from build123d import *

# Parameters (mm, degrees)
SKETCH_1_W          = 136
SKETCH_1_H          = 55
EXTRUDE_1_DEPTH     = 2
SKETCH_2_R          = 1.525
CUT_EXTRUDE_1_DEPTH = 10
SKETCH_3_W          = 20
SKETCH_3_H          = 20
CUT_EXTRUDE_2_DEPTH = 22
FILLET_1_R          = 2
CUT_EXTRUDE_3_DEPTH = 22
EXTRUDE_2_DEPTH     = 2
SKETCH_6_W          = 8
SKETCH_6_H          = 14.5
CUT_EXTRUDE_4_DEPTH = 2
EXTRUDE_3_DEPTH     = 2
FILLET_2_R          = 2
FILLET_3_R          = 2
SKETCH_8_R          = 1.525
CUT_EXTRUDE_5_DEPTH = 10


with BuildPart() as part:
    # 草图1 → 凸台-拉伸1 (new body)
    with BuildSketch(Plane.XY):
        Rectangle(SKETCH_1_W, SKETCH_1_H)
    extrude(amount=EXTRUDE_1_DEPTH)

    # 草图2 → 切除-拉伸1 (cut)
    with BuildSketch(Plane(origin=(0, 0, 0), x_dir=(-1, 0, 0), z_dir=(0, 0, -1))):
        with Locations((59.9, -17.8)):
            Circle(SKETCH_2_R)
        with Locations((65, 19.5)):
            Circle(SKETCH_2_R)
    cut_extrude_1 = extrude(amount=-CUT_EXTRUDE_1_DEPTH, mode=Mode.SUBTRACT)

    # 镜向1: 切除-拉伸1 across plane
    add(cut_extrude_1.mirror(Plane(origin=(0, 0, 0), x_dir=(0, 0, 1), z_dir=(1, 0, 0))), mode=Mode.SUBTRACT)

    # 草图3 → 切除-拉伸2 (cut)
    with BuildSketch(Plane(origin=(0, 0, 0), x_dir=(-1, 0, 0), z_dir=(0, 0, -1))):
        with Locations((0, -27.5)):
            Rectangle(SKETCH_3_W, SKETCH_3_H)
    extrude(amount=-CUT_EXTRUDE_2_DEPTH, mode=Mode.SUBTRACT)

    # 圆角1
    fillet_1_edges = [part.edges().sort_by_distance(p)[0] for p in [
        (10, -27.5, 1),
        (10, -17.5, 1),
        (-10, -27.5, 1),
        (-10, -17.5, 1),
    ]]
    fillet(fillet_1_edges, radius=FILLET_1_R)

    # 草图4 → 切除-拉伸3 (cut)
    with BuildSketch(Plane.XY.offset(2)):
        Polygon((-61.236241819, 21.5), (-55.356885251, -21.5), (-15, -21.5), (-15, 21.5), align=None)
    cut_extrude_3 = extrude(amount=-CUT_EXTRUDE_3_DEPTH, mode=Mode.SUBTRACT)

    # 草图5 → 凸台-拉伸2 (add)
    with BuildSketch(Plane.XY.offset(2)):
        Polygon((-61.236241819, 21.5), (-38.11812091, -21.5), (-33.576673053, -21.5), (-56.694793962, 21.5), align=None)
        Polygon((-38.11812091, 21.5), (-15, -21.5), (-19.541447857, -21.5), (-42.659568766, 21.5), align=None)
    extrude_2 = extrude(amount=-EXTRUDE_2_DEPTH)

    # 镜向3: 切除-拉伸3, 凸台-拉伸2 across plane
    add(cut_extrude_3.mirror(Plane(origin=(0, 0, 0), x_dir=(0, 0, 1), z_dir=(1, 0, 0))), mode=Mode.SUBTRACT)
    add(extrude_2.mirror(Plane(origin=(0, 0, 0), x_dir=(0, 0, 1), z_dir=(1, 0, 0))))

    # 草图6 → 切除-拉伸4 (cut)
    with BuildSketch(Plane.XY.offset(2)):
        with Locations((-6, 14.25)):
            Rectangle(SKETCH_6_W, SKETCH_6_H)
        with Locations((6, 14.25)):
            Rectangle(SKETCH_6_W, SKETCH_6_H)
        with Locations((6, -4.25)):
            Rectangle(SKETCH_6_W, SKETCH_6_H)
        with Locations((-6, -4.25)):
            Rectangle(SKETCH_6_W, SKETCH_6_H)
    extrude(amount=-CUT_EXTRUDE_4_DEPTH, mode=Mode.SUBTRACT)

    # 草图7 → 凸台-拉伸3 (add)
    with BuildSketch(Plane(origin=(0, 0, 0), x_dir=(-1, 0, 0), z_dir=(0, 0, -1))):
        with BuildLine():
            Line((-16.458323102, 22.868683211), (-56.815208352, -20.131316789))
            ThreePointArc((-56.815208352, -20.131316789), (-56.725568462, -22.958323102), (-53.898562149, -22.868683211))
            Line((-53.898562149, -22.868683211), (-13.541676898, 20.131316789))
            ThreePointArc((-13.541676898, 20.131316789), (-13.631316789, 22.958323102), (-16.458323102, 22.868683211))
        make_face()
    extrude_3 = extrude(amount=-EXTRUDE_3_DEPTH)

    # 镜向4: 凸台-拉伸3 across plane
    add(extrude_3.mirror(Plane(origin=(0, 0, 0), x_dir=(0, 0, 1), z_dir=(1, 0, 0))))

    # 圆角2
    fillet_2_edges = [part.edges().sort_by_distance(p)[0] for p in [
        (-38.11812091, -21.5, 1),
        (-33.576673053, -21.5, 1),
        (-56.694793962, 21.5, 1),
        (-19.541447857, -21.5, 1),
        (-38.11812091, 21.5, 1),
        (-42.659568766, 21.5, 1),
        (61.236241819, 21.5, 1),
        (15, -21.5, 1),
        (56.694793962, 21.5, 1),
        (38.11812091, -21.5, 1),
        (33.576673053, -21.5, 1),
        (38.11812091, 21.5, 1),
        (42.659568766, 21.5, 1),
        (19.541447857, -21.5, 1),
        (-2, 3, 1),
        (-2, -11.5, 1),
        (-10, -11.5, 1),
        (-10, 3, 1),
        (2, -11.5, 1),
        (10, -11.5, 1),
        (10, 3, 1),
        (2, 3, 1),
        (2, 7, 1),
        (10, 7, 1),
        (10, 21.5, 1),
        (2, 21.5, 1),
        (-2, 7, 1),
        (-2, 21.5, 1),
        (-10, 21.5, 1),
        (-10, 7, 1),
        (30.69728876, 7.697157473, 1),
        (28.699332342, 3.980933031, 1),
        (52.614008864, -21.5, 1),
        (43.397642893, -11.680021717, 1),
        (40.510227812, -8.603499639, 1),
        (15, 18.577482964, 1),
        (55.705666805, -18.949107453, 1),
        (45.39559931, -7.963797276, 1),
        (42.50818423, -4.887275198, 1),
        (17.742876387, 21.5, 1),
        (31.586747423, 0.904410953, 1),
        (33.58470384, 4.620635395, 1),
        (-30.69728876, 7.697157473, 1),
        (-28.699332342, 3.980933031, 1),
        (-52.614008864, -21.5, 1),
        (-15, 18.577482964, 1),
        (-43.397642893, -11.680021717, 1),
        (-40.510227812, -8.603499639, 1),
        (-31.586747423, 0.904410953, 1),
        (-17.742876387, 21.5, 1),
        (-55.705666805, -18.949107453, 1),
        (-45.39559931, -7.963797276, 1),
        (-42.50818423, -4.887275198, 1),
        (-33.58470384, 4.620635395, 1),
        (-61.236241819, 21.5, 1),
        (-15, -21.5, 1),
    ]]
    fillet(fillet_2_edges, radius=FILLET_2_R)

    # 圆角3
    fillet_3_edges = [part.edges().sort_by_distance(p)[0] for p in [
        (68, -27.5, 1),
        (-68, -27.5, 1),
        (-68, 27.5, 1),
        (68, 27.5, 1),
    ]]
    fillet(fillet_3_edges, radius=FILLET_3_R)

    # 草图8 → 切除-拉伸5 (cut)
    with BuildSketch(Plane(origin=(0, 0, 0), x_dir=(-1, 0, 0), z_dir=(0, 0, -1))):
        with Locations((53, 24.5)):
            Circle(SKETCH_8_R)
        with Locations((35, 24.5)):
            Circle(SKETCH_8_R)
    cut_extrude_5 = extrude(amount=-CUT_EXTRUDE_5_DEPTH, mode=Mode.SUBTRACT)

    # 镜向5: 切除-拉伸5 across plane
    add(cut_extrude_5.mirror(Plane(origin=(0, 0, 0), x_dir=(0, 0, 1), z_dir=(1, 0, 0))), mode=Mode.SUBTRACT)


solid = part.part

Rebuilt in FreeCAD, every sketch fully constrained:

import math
import FreeCAD as App
import Part
import Sketcher
from FreeCAD import Vector
Q = App.Units.Quantity


def edges_at(feature, points):
    """Names of the edges that pass closest to the given points."""
    edges = feature.Shape.Edges
    near = lambda p: min(range(len(edges)), key=lambda i: edges[i].distToShape(Part.Vertex(*p))[0])
    return sorted({f"Edge{near(p) + 1}" for p in points})

doc = App.newDocument("Part")
body = doc.addObject("PartDesign::Body", "Body")

sketch1 = body.newObject("Sketcher::SketchObject", "Sketch")
sketch1.AttachmentSupport = (doc.getObject("XY_Plane"), [""])
sketch1.MapMode = "FlatFace"
sketch1.addGeometry(Part.LineSegment(Vector(-68, 28, 0), Vector(-68, -28, 0)), False)
sketch1.addGeometry(Part.LineSegment(Vector(-68, -28, 0), Vector(68, -28, 0)), False)
sketch1.addGeometry(Part.LineSegment(Vector(68, -28, 0), Vector(68, 28, 0)), False)
sketch1.addGeometry(Part.LineSegment(Vector(68, 28, 0), Vector(-68, 28, 0)), False)
sketch1.addConstraint(Sketcher.Constraint("Coincident", 0, 2, 1, 1))
sketch1.addConstraint(Sketcher.Constraint("Coincident", 1, 2, 2, 1))
sketch1.addConstraint(Sketcher.Constraint("Coincident", 2, 2, 3, 1))
sketch1.addConstraint(Sketcher.Constraint("Coincident", 3, 2, 0, 1))
sketch1.addConstraint(Sketcher.Constraint("Vertical", 0))
sketch1.addConstraint(Sketcher.Constraint("Horizontal", 1))
sketch1.addConstraint(Sketcher.Constraint("Vertical", 2))
sketch1.addConstraint(Sketcher.Constraint("Horizontal", 3))
sketch1.addConstraint(Sketcher.Constraint("Symmetric", 0, 2, 2, 2, -1, 1))
sketch1.addConstraint(Sketcher.Constraint("DistanceX", 1, 1, 1, 2, Q("136 mm")))
sketch1.addConstraint(Sketcher.Constraint("DistanceY", 0, 2, 0, 1, Q("55 mm")))
pad1 = body.newObject("PartDesign::Pad", "Pad")
pad1.Profile = sketch1
pad1.Length = 2

sketch2 = body.newObject("Sketcher::SketchObject", "Sketch001")
sketch2.AttachmentSupport = (doc.getObject("XY_Plane"), [""])
sketch2.MapMode = "FlatFace"
sketch2.addGeometry(Part.Circle(Vector(-59.9, -17.8, 0), Vector(0, 0, 1), 1.5), False)
sketch2.addGeometry(Part.Circle(Vector(-65, 19.5, 0), Vector(0, 0, 1), 1.5), False)
sketch2.addConstraint(Sketcher.Constraint("Equal", 0, 1))
sketch2.addConstraint(Sketcher.Constraint("Diameter", 0, Q("3.05 mm")))
sketch2.addConstraint(Sketcher.Constraint("DistanceX", 1, 3, -1, 1, Q("65 mm")))
sketch2.addConstraint(Sketcher.Constraint("DistanceX", 0, 3, -1, 1, Q("59.9 mm")))
sketch2.addConstraint(Sketcher.Constraint("DistanceY", 0, 3, -1, 1, Q("17.8 mm")))
sketch2.addConstraint(Sketcher.Constraint("DistanceY", -1, 1, 1, 3, Q("19.5 mm")))
pocket1 = body.newObject("PartDesign::Pocket", "Pocket")
pocket1.Profile = sketch2
pocket1.Length = 10
pocket1.Reversed = True
doc.recompute()

mirrored = body.newObject("PartDesign::Mirrored", "Mirrored")
mirrored.Originals = [pocket1]
mirrored.MirrorPlane = (doc.getObject("YZ_Plane"), [""])
body.Tip = mirrored

sketch3 = body.newObject("Sketcher::SketchObject", "Sketch002")
sketch3.AttachmentSupport = (doc.getObject("XY_Plane"), [""])
sketch3.MapMode = "FlatFace"
sketch3.addGeometry(Part.LineSegment(Vector(10, -18, 0), Vector(10, -38, 0)), False)
sketch3.addGeometry(Part.LineSegment(Vector(10, -38, 0), Vector(-10, -38, 0)), False)
sketch3.addGeometry(Part.LineSegment(Vector(-10, -38, 0), Vector(-10, -18, 0)), False)
sketch3.addGeometry(Part.LineSegment(Vector(-10, -18, 0), Vector(10, -18, 0)), False)
sketch3.addConstraint(Sketcher.Constraint("Coincident", 0, 2, 1, 1))
sketch3.addConstraint(Sketcher.Constraint("Coincident", 1, 2, 2, 1))
sketch3.addConstraint(Sketcher.Constraint("Coincident", 2, 2, 3, 1))
sketch3.addConstraint(Sketcher.Constraint("Coincident", 3, 2, 0, 1))
sketch3.addConstraint(Sketcher.Constraint("Vertical", 0))
sketch3.addConstraint(Sketcher.Constraint("Horizontal", 1))
sketch3.addConstraint(Sketcher.Constraint("Vertical", 2))
sketch3.addConstraint(Sketcher.Constraint("Horizontal", 3))
sketch3.addConstraint(Sketcher.Constraint("Equal", 3, 0))
sketch3.addConstraint(Sketcher.Constraint("DistanceX", 1, 2, 1, 1, Q("20 mm")))
sketch3.addConstraint(Sketcher.Constraint("DistanceX", -1, 1, 0, 2, Q("10 mm")))
sketch3.addConstraint(Sketcher.Constraint("DistanceY", 0, 2, -1, 1, Q("37.5 mm")))
pocket2 = body.newObject("PartDesign::Pocket", "Pocket001")
pocket2.Profile = sketch3
pocket2.Length = 22
pocket2.Reversed = True
doc.recompute()

fillet = body.newObject("PartDesign::Fillet", "Fillet")
fillet.Base = (pocket2, edges_at(pocket2, [
    (10, -27.5, 1),
    (10, -17.5, 1),
    (-10, -27.5, 1),
    (-10, -17.5, 1),
]))
fillet.Radius = 2

sketch4 = body.newObject("Sketcher::SketchObject", "Sketch003")
sketch4.AttachmentSupport = (doc.getObject("XY_Plane"), [""])
sketch4.MapMode = "FlatFace"
sketch4.AttachmentOffset = App.Placement(Vector(0, 0, 2), App.Rotation())
sketch4.addGeometry(Part.LineSegment(Vector(-61, 22, 0), Vector(-55, -22, 0)), False)
sketch4.addGeometry(Part.LineSegment(Vector(-55, -22, 0), Vector(-15, -22, 0)), False)
sketch4.addGeometry(Part.LineSegment(Vector(-15, -22, 0), Vector(-15, 22, 0)), False)
sketch4.addGeometry(Part.LineSegment(Vector(-15, 22, 0), Vector(-61, 22, 0)), False)
sketch4.addConstraint(Sketcher.Constraint("Coincident", 0, 2, 1, 1))
sketch4.addConstraint(Sketcher.Constraint("Coincident", 1, 2, 2, 1))
sketch4.addConstraint(Sketcher.Constraint("Coincident", 2, 2, 3, 1))
sketch4.addConstraint(Sketcher.Constraint("Coincident", 3, 2, 0, 1))
sketch4.addConstraint(Sketcher.Constraint("Horizontal", 1))
sketch4.addConstraint(Sketcher.Constraint("Vertical", 2))
sketch4.addConstraint(Sketcher.Constraint("Horizontal", 3))
sketch4.addConstraint(Sketcher.Constraint("DistanceY", 2, 1, 2, 2, Q("43 mm")))
sketch4.addConstraint(Sketcher.Constraint("DistanceX", 1, 2, -1, 1, Q("15 mm")))
sketch4.addConstraint(Sketcher.Constraint("DistanceY", 0, 2, -1, 1, Q("21.5 mm")))
sketch4.addConstraint(Sketcher.Constraint("DistanceX", 3, 2, 3, 1, Q("46.236242 mm")))
sketch4.addConstraint(Sketcher.Constraint("Distance", 0, Q("43.400079 mm")))
pocket3 = body.newObject("PartDesign::Pocket", "Pocket002")
pocket3.Profile = sketch4
pocket3.Length = 22

sketch5 = body.newObject("Sketcher::SketchObject", "Sketch004")
sketch5.AttachmentSupport = (doc.getObject("XY_Plane"), [""])
sketch5.MapMode = "FlatFace"
sketch5.AttachmentOffset = App.Placement(Vector(0, 0, 2), App.Rotation())
sketch5.addGeometry(Part.LineSegment(Vector(-61.2, 21.5, 0), Vector(-38.1, -21.5, 0)), False)
sketch5.addGeometry(Part.LineSegment(Vector(-38.1, -21.5, 0), Vector(-33.6, -21.5, 0)), False)
sketch5.addGeometry(Part.LineSegment(Vector(-33.6, -21.5, 0), Vector(-56.7, 21.5, 0)), False)
sketch5.addGeometry(Part.LineSegment(Vector(-56.7, 21.5, 0), Vector(-61.2, 21.5, 0)), False)
sketch5.addGeometry(Part.LineSegment(Vector(-15, -21.5, 0), Vector(-38.1, 21.5, 0)), False)
sketch5.addGeometry(Part.LineSegment(Vector(-38.1, 21.5, 0), Vector(-42.7, 21.5, 0)), False)
sketch5.addGeometry(Part.LineSegment(Vector(-42.7, 21.5, 0), Vector(-19.5, -21.5, 0)), False)
sketch5.addGeometry(Part.LineSegment(Vector(-19.5, -21.5, 0), Vector(-15, -21.5, 0)), False)
sketch5.addConstraint(Sketcher.Constraint("Coincident", 0, 2, 1, 1))
sketch5.addConstraint(Sketcher.Constraint("Coincident", 1, 2, 2, 1))
sketch5.addConstraint(Sketcher.Constraint("Coincident", 2, 2, 3, 1))
sketch5.addConstraint(Sketcher.Constraint("Coincident", 3, 2, 0, 1))
sketch5.addConstraint(Sketcher.Constraint("Coincident", 4, 2, 5, 1))
sketch5.addConstraint(Sketcher.Constraint("Coincident", 5, 2, 6, 1))
sketch5.addConstraint(Sketcher.Constraint("Coincident", 6, 2, 7, 1))
sketch5.addConstraint(Sketcher.Constraint("Coincident", 7, 2, 4, 1))
sketch5.addConstraint(Sketcher.Constraint("Horizontal", 1))
sketch5.addConstraint(Sketcher.Constraint("Horizontal", 3))
sketch5.addConstraint(Sketcher.Constraint("Horizontal", 5))
sketch5.addConstraint(Sketcher.Constraint("Horizontal", 7))
sketch5.addConstraint(Sketcher.Constraint("Symmetric", 0, 2, 4, 2, -1))
sketch5.addConstraint(Sketcher.Constraint("Parallel", 0, 2))
sketch5.addConstraint(Sketcher.Constraint("Parallel", 2, 4))
sketch5.addConstraint(Sketcher.Constraint("Parallel", 4, 6))
sketch5.addConstraint(Sketcher.Constraint("Horizontal", 3, 2, 4, 2))
sketch5.addConstraint(Sketcher.Constraint("Horizontal", 1, 2, 6, 2))
sketch5.addConstraint(Sketcher.Constraint("Equal", 3, 5))
sketch5.addConstraint(Sketcher.Constraint("DistanceX", 7, 2, -1, 1, Q("15 mm")))
sketch5.addConstraint(Sketcher.Constraint("DistanceY", 0, 2, 2, 2, Q("43 mm")))
sketch5.addConstraint(Sketcher.Constraint("DistanceX", 1, 1, 1, 2, Q("4.541448 mm")))
sketch5.addConstraint(Sketcher.Constraint("DistanceX", 0, 2, -1, 1, Q("38.118121 mm")))
pad2 = body.newObject("PartDesign::Pad", "Pad001")
pad2.Profile = sketch5
pad2.Length = 2
pad2.Reversed = True
doc.recompute()

mirrored2 = body.newObject("PartDesign::Mirrored", "Mirrored001")
mirrored2.Originals = [pocket3, pad2]
mirrored2.MirrorPlane = (doc.getObject("YZ_Plane"), [""])
body.Tip = mirrored2

sketch6 = body.newObject("Sketcher::SketchObject", "Sketch005")
sketch6.AttachmentSupport = (doc.getObject("XY_Plane"), [""])
sketch6.MapMode = "FlatFace"
sketch6.AttachmentOffset = App.Placement(Vector(0, 0, 2), App.Rotation())
sketch6.addGeometry(Part.LineSegment(Vector(-10, 22, 0), Vector(-10, 7, 0)), False)
sketch6.addGeometry(Part.LineSegment(Vector(-10, 7, 0), Vector(-2, 7, 0)), False)
sketch6.addGeometry(Part.LineSegment(Vector(-2, 7, 0), Vector(-2, 22, 0)), False)
sketch6.addGeometry(Part.LineSegment(Vector(-2, 22, 0), Vector(-10, 22, 0)), False)
sketch6.addGeometry(Part.LineSegment(Vector(2, 22, 0), Vector(2, 7, 0)), False)
sketch6.addGeometry(Part.LineSegment(Vector(2, 7, 0), Vector(10, 7, 0)), False)
sketch6.addGeometry(Part.LineSegment(Vector(10, 7, 0), Vector(10, 22, 0)), False)
sketch6.addGeometry(Part.LineSegment(Vector(10, 22, 0), Vector(2, 22, 0)), False)
sketch6.addGeometry(Part.LineSegment(Vector(2, 3, 0), Vector(2, -12, 0)), False)
sketch6.addGeometry(Part.LineSegment(Vector(2, -12, 0), Vector(10, -12, 0)), False)
sketch6.addGeometry(Part.LineSegment(Vector(10, -12, 0), Vector(10, 3, 0)), False)
sketch6.addGeometry(Part.LineSegment(Vector(10, 3, 0), Vector(2, 3, 0)), False)
sketch6.addGeometry(Part.LineSegment(Vector(-10, 3, 0), Vector(-10, -12, 0)), False)
sketch6.addGeometry(Part.LineSegment(Vector(-10, -12, 0), Vector(-2, -12, 0)), False)
sketch6.addGeometry(Part.LineSegment(Vector(-2, -12, 0), Vector(-2, 3, 0)), False)
sketch6.addGeometry(Part.LineSegment(Vector(-2, 3, 0), Vector(-10, 3, 0)), False)
sketch6.addConstraint(Sketcher.Constraint("Coincident", 0, 2, 1, 1))
sketch6.addConstraint(Sketcher.Constraint("Coincident", 1, 2, 2, 1))
sketch6.addConstraint(Sketcher.Constraint("Coincident", 2, 2, 3, 1))
sketch6.addConstraint(Sketcher.Constraint("Coincident", 3, 2, 0, 1))
sketch6.addConstraint(Sketcher.Constraint("Coincident", 4, 2, 5, 1))
sketch6.addConstraint(Sketcher.Constraint("Coincident", 5, 2, 6, 1))
sketch6.addConstraint(Sketcher.Constraint("Coincident", 6, 2, 7, 1))
sketch6.addConstraint(Sketcher.Constraint("Coincident", 7, 2, 4, 1))
sketch6.addConstraint(Sketcher.Constraint("Coincident", 8, 2, 9, 1))
sketch6.addConstraint(Sketcher.Constraint("Coincident", 9, 2, 10, 1))
sketch6.addConstraint(Sketcher.Constraint("Coincident", 10, 2, 11, 1))
sketch6.addConstraint(Sketcher.Constraint("Coincident", 11, 2, 8, 1))
sketch6.addConstraint(Sketcher.Constraint("Coincident", 12, 2, 13, 1))
sketch6.addConstraint(Sketcher.Constraint("Coincident", 13, 2, 14, 1))
sketch6.addConstraint(Sketcher.Constraint("Coincident", 14, 2, 15, 1))
sketch6.addConstraint(Sketcher.Constraint("Coincident", 15, 2, 12, 1))
sketch6.addConstraint(Sketcher.Constraint("Vertical", 0))
sketch6.addConstraint(Sketcher.Constraint("Horizontal", 1))
sketch6.addConstraint(Sketcher.Constraint("Vertical", 2))
sketch6.addConstraint(Sketcher.Constraint("Horizontal", 3))
sketch6.addConstraint(Sketcher.Constraint("Vertical", 4))
sketch6.addConstraint(Sketcher.Constraint("Horizontal", 5))
sketch6.addConstraint(Sketcher.Constraint("Vertical", 6))
sketch6.addConstraint(Sketcher.Constraint("Horizontal", 7))
sketch6.addConstraint(Sketcher.Constraint("Vertical", 8))
sketch6.addConstraint(Sketcher.Constraint("Horizontal", 9))
sketch6.addConstraint(Sketcher.Constraint("Vertical", 10))
sketch6.addConstraint(Sketcher.Constraint("Horizontal", 11))
sketch6.addConstraint(Sketcher.Constraint("Vertical", 12))
sketch6.addConstraint(Sketcher.Constraint("Horizontal", 13))
sketch6.addConstraint(Sketcher.Constraint("Vertical", 14))
sketch6.addConstraint(Sketcher.Constraint("Horizontal", 15))
sketch6.addConstraint(Sketcher.Constraint("Symmetric", 1, 2, 4, 2, -2))
sketch6.addConstraint(Sketcher.Constraint("Symmetric", 3, 2, 6, 2, -2))
sketch6.addConstraint(Sketcher.Constraint("Symmetric", 9, 2, 12, 2, -2))
sketch6.addConstraint(Sketcher.Constraint("Symmetric", 11, 2, 14, 2, -2))
sketch6.addConstraint(Sketcher.Constraint("Vertical", 7, 2, 8, 2))
sketch6.addConstraint(Sketcher.Constraint("Vertical", 6, 2, 9, 2))
sketch6.addConstraint(Sketcher.Constraint("Equal", 6, 8))
sketch6.addConstraint(Sketcher.Constraint("DistanceX", 1, 1, 1, 2, Q("8 mm")))
sketch6.addConstraint(Sketcher.Constraint("DistanceY", 0, 2, 0, 1, Q("14.5 mm")))
sketch6.addConstraint(Sketcher.Constraint("DistanceX", 0, 2, -1, 1, Q("10 mm")))
sketch6.addConstraint(Sketcher.Constraint("DistanceY", -1, 1, 0, 2, Q("7 mm")))
sketch6.addConstraint(Sketcher.Constraint("DistanceY", -1, 1, 10, 2, Q("3 mm")))
pocket4 = body.newObject("PartDesign::Pocket", "Pocket003")
pocket4.Profile = sketch6
pocket4.Length = 2

sketch7 = body.newObject("Sketcher::SketchObject", "Sketch006")
sketch7.AttachmentSupport = (doc.getObject("XY_Plane"), [""])
sketch7.MapMode = "FlatFace"
sketch7.addGeometry(Part.LineSegment(Vector(16.5, 22.9, 0), Vector(56.8, -20.1, 0)), False)
sketch7.addGeometry(Part.ArcOfCircle(Part.Circle(Vector(55.4, -21.5, 0), Vector(0, 0, 1), 2), math.radians(-137), math.radians(43)), False)
sketch7.addGeometry(Part.LineSegment(Vector(53.9, -22.9, 0), Vector(13.5, 20.1, 0)), False)
sketch7.addGeometry(Part.ArcOfCircle(Part.Circle(Vector(15, 21.5, 0), Vector(0, 0, 1), 2), math.radians(43), math.radians(223)), False)
sketch7.addConstraint(Sketcher.Constraint("Tangent", 0, 2, 1, 2))
sketch7.addConstraint(Sketcher.Constraint("Tangent", 1, 1, 2, 1))
sketch7.addConstraint(Sketcher.Constraint("Tangent", 2, 2, 3, 2))
sketch7.addConstraint(Sketcher.Constraint("Tangent", 3, 1, 0, 1))
sketch7.addConstraint(Sketcher.Constraint("Equal", 1, 3))
sketch7.addConstraint(Sketcher.Constraint("Radius", 1, Q("2 mm")))
sketch7.addConstraint(Sketcher.Constraint("DistanceX", -1, 1, 3, 3, Q("15 mm")))
sketch7.addConstraint(Sketcher.Constraint("DistanceY", 1, 3, 3, 3, Q("43 mm")))
sketch7.addConstraint(Sketcher.Constraint("DistanceY", 1, 3, -1, 1, Q("21.5 mm")))
sketch7.addConstraint(Sketcher.Constraint("DistanceX", -1, 1, 0, 2, Q("56.815208 mm")))
pad3 = body.newObject("PartDesign::Pad", "Pad002")
pad3.Profile = sketch7
pad3.Length = 2
doc.recompute()

mirrored3 = body.newObject("PartDesign::Mirrored", "Mirrored002")
mirrored3.Originals = [pad3]
mirrored3.MirrorPlane = (doc.getObject("YZ_Plane"), [""])
body.Tip = mirrored3
doc.recompute()

fillet2 = body.newObject("PartDesign::Fillet", "Fillet001")
fillet2.Base = (mirrored3, edges_at(mirrored3, [
    (-38.118, -21.5, 1),
    (-33.577, -21.5, 1),
    (-56.695, 21.5, 1),
    (-19.541, -21.5, 1),
    (-38.118, 21.5, 1),
    (-42.66, 21.5, 1),
    (61.236, 21.5, 1),
    (15, -21.5, 1),
    (56.695, 21.5, 1),
    (38.118, -21.5, 1),
    (33.577, -21.5, 1),
    (38.118, 21.5, 1),
    (42.66, 21.5, 1),
    (19.541, -21.5, 1),
    (-2, 3, 1),
    (-2, -11.5, 1),
    (-10, -11.5, 1),
    (-10, 3, 1),
    (2, -11.5, 1),
    (10, -11.5, 1),
    (10, 3, 1),
    (2, 3, 1),
    (2, 7, 1),
    (10, 7, 1),
    (10, 21.5, 1),
    (2, 21.5, 1),
    (-2, 7, 1),
    (-2, 21.5, 1),
    (-10, 21.5, 1),
    (-10, 7, 1),
    (30.697, 7.697, 1),
    (28.699, 3.981, 1),
    (52.614, -21.5, 1),
    (43.398, -11.68, 1),
    (40.51, -8.603, 1),
    (15, 18.577, 1),
    (55.706, -18.949, 1),
    (45.396, -7.964, 1),
    (42.508, -4.887, 1),
    (17.743, 21.5, 1),
    (31.587, 0.904, 1),
    (33.585, 4.621, 1),
    (-30.697, 7.697, 1),
    (-28.699, 3.981, 1),
    (-52.614, -21.5, 1),
    (-15, 18.577, 1),
    (-43.398, -11.68, 1),
    (-40.51, -8.603, 1),
    (-31.587, 0.904, 1),
    (-17.743, 21.5, 1),
    (-55.706, -18.949, 1),
    (-45.396, -7.964, 1),
    (-42.508, -4.887, 1),
    (-33.585, 4.621, 1),
    (-61.236, 21.5, 1),
    (-15, -21.5, 1),
]))
fillet2.Radius = 2
doc.recompute()

fillet3 = body.newObject("PartDesign::Fillet", "Fillet002")
fillet3.Base = (fillet2, edges_at(fillet2, [
    (68, -27.5, 1),
    (-68, -27.5, 1),
    (-68, 27.5, 1),
    (68, 27.5, 1),
]))
fillet3.Radius = 2

sketch8 = body.newObject("Sketcher::SketchObject", "Sketch007")
sketch8.AttachmentSupport = (doc.getObject("XY_Plane"), [""])
sketch8.MapMode = "FlatFace"
sketch8.addGeometry(Part.Circle(Vector(-53, 24.5, 0), Vector(0, 0, 1), 1.5), False)
sketch8.addGeometry(Part.Circle(Vector(-35, 24.5, 0), Vector(0, 0, 1), 1.5), False)
sketch8.addConstraint(Sketcher.Constraint("Equal", 0, 1))
sketch8.addConstraint(Sketcher.Constraint("Horizontal", 0, 3, 1, 3))
sketch8.addConstraint(Sketcher.Constraint("Diameter", 0, Q("3.05 mm")))
sketch8.addConstraint(Sketcher.Constraint("DistanceX", 0, 3, -1, 1, Q("53 mm")))
sketch8.addConstraint(Sketcher.Constraint("DistanceX", 1, 3, -1, 1, Q("35 mm")))
sketch8.addConstraint(Sketcher.Constraint("DistanceY", -1, 1, 0, 3, Q("24.5 mm")))
pocket5 = body.newObject("PartDesign::Pocket", "Pocket004")
pocket5.Profile = sketch8
pocket5.Length = 10
pocket5.Reversed = True
doc.recompute()

mirrored4 = body.newObject("PartDesign::Mirrored", "Mirrored003")
mirrored4.Originals = [pocket5]
mirrored4.MirrorPlane = (doc.getObject("YZ_Plane"), [""])
body.Tip = mirrored4

doc.recompute()
